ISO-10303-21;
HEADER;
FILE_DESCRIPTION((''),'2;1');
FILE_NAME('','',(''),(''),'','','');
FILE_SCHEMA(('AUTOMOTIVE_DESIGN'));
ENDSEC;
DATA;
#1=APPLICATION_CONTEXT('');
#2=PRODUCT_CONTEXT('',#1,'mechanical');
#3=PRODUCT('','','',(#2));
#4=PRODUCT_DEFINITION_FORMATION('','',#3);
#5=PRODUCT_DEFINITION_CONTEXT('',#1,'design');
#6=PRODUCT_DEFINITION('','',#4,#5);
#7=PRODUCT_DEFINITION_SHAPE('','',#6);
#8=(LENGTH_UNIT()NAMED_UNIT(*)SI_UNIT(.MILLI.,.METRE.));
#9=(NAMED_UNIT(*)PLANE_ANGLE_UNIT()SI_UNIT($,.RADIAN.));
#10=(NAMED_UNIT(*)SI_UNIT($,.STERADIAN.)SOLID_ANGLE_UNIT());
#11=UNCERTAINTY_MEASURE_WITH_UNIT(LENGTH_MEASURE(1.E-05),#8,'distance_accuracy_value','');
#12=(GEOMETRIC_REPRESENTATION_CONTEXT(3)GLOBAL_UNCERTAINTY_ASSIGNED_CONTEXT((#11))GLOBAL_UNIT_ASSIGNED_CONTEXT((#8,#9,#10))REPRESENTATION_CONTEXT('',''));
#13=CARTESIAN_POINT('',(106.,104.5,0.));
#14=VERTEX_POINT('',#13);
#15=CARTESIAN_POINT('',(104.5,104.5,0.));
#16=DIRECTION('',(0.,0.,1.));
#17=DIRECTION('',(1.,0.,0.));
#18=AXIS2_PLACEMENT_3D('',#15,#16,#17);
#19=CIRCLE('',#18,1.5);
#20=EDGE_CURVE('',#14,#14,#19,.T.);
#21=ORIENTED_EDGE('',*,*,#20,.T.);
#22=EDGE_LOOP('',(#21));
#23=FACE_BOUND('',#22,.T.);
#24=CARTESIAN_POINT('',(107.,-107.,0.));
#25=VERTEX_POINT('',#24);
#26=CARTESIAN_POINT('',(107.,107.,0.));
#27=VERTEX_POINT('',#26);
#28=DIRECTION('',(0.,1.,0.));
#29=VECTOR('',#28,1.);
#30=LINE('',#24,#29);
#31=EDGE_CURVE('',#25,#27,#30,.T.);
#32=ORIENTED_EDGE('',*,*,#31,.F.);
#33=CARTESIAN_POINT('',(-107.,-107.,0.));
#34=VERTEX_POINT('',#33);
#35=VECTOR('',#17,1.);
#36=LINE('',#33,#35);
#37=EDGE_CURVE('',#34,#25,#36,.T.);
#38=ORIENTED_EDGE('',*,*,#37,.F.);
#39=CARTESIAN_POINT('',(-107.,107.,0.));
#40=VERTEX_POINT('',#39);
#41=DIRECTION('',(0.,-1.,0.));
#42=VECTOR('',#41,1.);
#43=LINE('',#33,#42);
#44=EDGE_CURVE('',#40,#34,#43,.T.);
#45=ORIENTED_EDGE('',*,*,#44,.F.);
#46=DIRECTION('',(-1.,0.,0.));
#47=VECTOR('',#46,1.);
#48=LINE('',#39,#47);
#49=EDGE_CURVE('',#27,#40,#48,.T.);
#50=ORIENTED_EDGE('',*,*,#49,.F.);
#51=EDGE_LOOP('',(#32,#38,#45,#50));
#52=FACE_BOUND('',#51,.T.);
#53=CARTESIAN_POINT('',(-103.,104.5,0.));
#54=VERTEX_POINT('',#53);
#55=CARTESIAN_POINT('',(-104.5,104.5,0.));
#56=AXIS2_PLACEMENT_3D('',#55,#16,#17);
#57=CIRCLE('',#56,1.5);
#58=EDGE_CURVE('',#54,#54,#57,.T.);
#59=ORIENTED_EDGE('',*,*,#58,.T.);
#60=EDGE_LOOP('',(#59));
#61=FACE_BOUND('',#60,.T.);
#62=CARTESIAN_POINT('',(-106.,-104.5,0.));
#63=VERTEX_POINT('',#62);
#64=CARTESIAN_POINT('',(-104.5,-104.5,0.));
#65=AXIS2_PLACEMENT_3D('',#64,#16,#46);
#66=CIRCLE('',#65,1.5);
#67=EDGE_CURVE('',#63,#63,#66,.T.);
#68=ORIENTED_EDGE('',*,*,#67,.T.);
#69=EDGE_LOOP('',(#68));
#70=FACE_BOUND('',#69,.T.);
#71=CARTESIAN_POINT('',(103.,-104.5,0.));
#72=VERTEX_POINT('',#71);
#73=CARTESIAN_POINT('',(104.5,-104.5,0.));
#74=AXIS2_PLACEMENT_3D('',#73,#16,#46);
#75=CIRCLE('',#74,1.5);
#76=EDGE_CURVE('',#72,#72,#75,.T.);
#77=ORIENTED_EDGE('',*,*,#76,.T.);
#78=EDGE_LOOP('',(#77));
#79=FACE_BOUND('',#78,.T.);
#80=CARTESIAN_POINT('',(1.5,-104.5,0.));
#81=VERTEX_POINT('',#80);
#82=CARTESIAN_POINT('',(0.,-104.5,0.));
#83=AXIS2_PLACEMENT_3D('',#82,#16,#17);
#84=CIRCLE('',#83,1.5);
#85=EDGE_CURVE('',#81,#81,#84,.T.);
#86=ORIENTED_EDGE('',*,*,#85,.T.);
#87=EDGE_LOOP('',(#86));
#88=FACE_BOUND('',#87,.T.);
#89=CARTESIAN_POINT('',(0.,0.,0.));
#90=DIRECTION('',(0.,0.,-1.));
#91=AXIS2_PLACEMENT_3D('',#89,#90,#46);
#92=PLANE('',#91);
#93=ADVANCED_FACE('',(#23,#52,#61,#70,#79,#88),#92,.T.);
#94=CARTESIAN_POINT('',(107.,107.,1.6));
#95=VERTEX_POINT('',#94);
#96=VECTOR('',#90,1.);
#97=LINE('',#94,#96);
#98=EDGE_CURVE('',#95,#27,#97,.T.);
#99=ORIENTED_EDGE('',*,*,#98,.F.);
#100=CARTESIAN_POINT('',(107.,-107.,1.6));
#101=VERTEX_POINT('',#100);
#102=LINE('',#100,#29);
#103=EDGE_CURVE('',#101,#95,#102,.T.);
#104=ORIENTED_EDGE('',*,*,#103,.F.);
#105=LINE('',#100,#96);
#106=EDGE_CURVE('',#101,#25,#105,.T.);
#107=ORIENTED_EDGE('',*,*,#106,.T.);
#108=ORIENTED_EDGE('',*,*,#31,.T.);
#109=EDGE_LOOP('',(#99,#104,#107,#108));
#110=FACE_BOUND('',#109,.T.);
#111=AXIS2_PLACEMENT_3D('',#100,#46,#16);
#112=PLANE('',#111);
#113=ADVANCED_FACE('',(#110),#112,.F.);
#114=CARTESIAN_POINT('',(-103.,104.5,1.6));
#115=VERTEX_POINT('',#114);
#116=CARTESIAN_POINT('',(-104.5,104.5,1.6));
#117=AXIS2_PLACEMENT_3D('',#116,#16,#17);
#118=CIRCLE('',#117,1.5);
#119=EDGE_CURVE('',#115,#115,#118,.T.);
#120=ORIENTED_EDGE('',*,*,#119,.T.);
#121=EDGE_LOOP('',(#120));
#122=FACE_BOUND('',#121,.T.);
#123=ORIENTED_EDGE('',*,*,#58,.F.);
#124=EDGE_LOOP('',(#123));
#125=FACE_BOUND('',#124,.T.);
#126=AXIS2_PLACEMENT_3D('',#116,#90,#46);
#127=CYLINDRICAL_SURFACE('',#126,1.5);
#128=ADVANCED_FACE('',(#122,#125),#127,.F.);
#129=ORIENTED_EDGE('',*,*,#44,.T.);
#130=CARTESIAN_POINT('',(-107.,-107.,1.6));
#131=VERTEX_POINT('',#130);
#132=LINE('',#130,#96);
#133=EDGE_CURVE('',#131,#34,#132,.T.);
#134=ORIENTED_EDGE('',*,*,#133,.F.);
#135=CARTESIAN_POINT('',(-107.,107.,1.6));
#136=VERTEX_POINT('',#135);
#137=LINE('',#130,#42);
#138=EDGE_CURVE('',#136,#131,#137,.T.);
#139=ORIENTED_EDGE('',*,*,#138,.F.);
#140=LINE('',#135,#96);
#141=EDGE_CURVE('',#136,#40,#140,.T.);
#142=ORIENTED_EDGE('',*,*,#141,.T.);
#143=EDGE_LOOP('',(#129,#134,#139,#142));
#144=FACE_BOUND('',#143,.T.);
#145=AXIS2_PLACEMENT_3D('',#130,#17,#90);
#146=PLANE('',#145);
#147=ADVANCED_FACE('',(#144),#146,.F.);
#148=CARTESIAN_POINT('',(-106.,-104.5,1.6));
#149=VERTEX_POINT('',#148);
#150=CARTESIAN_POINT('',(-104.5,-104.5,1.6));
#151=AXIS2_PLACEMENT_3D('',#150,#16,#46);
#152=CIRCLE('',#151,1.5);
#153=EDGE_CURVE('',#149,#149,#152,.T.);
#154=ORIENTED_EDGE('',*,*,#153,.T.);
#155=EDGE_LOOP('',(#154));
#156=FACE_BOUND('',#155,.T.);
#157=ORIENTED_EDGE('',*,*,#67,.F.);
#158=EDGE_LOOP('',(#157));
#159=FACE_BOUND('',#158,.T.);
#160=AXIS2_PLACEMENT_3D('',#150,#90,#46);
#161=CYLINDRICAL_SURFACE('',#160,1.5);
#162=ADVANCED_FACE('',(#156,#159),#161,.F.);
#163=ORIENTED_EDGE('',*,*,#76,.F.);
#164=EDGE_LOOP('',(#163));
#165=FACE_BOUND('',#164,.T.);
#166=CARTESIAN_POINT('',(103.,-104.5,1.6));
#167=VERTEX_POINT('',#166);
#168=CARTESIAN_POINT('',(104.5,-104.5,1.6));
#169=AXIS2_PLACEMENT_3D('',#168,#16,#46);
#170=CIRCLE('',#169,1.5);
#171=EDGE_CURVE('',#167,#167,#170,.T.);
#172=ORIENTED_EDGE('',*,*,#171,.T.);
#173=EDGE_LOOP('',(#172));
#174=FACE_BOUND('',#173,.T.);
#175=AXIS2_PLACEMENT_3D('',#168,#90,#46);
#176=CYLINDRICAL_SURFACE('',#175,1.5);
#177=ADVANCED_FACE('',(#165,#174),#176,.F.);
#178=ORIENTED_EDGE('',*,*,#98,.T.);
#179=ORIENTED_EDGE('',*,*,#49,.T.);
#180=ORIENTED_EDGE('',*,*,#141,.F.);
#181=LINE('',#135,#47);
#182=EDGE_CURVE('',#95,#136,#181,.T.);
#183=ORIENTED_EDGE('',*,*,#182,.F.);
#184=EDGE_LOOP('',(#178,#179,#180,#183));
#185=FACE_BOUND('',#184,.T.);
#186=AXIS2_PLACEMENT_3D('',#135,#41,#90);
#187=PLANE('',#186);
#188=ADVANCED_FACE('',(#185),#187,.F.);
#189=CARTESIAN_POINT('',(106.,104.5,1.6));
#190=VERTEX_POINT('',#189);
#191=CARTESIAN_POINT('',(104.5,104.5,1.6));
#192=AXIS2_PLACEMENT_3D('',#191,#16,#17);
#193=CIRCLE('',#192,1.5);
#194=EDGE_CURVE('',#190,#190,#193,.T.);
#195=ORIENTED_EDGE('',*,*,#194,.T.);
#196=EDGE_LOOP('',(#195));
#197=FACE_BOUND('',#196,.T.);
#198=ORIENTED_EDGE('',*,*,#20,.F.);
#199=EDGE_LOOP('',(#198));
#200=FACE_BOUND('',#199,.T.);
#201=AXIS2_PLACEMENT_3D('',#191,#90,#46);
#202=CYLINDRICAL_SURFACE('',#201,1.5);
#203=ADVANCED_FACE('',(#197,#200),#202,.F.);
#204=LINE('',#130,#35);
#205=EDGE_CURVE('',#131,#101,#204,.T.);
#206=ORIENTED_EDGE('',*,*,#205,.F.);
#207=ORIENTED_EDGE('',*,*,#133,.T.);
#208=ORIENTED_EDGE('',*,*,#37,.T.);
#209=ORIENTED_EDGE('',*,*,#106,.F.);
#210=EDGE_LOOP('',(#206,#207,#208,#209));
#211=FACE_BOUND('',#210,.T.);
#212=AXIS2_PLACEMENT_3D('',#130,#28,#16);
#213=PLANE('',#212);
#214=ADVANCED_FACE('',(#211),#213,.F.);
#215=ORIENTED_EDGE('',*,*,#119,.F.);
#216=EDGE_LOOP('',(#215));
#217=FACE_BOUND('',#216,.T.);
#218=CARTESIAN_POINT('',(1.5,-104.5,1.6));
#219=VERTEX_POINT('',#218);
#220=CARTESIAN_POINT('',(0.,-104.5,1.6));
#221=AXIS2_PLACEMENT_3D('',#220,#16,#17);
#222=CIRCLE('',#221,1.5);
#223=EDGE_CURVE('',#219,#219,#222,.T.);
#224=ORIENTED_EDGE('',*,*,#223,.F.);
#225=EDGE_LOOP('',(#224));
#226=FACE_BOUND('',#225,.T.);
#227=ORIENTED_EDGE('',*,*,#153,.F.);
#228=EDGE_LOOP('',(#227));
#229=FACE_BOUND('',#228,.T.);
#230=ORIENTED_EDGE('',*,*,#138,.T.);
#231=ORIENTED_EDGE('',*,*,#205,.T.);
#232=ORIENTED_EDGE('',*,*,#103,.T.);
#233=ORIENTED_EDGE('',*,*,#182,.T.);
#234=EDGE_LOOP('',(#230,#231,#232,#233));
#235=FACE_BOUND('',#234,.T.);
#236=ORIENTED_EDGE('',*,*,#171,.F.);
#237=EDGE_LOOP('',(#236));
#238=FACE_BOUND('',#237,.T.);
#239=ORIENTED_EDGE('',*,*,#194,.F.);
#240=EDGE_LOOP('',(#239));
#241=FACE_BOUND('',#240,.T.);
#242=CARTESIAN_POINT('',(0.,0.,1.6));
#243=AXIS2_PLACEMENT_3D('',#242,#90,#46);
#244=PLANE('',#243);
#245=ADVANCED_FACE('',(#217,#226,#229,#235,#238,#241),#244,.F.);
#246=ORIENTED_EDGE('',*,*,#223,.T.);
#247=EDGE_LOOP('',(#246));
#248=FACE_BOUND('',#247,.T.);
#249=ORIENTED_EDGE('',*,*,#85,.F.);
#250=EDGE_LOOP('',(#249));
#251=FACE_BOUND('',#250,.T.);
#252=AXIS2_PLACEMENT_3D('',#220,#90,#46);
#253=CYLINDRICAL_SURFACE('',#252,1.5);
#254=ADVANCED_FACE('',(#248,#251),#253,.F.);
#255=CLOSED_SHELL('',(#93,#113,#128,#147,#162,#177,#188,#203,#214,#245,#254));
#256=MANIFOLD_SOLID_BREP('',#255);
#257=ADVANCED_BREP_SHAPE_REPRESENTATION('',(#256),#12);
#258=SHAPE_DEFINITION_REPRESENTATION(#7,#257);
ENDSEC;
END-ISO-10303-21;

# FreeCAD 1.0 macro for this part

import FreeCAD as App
import Part
import Sketcher

V = App.Vector


def add_polygon(sketch, points):
    """Adds a closed chain of lines whose ends are joined by coincident constraints."""
    first, n = sketch.GeometryCount, len(points)
    for a, b in zip(points, points[1:] + points[:1]):
        sketch.addGeometry(Part.LineSegment(App.Vector(*a, 0), App.Vector(*b, 0)), False)
    for i in range(n):
        sketch.addConstraint(Sketcher.Constraint("Coincident", first + i, 2, first + (i + 1) % n, 1))

doc = App.newDocument("Part")
body = doc.addObject("PartDesign::Body", "Body")

sketch1 = body.newObject("Sketcher::SketchObject", "Sketch")
sketch1.AttachmentSupport = (doc.getObject("XY_Plane"), [""])
sketch1.MapMode = "FlatFace"
add_polygon(sketch1, [(-107, 107), (-107, -107), (107, -107), (107, 107)])
sketch1.addGeometry(Part.Circle(V(-104.5, -104.5, 0), V(0, 0, 1), 1.5), False)
sketch1.addGeometry(Part.Circle(V(0, -104.5, 0), V(0, 0, 1), 1.5), False)
sketch1.addGeometry(Part.Circle(V(104.5, -104.5, 0), V(0, 0, 1), 1.5), False)
sketch1.addGeometry(Part.Circle(V(-104.5, 104.5, 0), V(0, 0, 1), 1.5), False)
sketch1.addGeometry(Part.Circle(V(104.5, 104.5, 0), V(0, 0, 1), 1.5), False)
sketch1.addConstraint([
    Sketcher.Constraint("Vertical", 0),
    Sketcher.Constraint("Horizontal", 1),
    Sketcher.Constraint("Vertical", 2),
    Sketcher.Constraint("Horizontal", 3),
    Sketcher.Constraint("Equal", 4, 5),
    Sketcher.Constraint("Equal", 5, 6),
    Sketcher.Constraint("Equal", 6, 7),
    Sketcher.Constraint("Equal", 7, 8),
    Sketcher.Constraint("Symmetric", 6, 3, 7, 3, -1, 1),
    Sketcher.Constraint("Symmetric", 4, 3, 8, 3, -1, 1),
    Sketcher.Constraint("Symmetric", 0, 2, 2, 2, -1, 1),
    Sketcher.Constraint("Symmetric", 4, 3, 6, 3, -2),
    Sketcher.Constraint("PointOnObject", 5, 3, -2),
    Sketcher.Constraint("Horizontal", 4, 3, 5, 3),
    Sketcher.Constraint("Equal", 3, 0),
    Sketcher.Constraint("Diameter", 4, 3.0),
    Sketcher.Constraint("DistanceX", 1, 1, 1, 2, 214.0),
    Sketcher.Constraint("DistanceX", 4, 3, 6, 3, 209.0),
    Sketcher.Constraint("DistanceY", 4, 3, 7, 3, 209.0),
])
pad1 = body.newObject("PartDesign::Pad", "Pad")
pad1.Profile = sketch1
pad1.Length = 1.6

doc.recompute()
